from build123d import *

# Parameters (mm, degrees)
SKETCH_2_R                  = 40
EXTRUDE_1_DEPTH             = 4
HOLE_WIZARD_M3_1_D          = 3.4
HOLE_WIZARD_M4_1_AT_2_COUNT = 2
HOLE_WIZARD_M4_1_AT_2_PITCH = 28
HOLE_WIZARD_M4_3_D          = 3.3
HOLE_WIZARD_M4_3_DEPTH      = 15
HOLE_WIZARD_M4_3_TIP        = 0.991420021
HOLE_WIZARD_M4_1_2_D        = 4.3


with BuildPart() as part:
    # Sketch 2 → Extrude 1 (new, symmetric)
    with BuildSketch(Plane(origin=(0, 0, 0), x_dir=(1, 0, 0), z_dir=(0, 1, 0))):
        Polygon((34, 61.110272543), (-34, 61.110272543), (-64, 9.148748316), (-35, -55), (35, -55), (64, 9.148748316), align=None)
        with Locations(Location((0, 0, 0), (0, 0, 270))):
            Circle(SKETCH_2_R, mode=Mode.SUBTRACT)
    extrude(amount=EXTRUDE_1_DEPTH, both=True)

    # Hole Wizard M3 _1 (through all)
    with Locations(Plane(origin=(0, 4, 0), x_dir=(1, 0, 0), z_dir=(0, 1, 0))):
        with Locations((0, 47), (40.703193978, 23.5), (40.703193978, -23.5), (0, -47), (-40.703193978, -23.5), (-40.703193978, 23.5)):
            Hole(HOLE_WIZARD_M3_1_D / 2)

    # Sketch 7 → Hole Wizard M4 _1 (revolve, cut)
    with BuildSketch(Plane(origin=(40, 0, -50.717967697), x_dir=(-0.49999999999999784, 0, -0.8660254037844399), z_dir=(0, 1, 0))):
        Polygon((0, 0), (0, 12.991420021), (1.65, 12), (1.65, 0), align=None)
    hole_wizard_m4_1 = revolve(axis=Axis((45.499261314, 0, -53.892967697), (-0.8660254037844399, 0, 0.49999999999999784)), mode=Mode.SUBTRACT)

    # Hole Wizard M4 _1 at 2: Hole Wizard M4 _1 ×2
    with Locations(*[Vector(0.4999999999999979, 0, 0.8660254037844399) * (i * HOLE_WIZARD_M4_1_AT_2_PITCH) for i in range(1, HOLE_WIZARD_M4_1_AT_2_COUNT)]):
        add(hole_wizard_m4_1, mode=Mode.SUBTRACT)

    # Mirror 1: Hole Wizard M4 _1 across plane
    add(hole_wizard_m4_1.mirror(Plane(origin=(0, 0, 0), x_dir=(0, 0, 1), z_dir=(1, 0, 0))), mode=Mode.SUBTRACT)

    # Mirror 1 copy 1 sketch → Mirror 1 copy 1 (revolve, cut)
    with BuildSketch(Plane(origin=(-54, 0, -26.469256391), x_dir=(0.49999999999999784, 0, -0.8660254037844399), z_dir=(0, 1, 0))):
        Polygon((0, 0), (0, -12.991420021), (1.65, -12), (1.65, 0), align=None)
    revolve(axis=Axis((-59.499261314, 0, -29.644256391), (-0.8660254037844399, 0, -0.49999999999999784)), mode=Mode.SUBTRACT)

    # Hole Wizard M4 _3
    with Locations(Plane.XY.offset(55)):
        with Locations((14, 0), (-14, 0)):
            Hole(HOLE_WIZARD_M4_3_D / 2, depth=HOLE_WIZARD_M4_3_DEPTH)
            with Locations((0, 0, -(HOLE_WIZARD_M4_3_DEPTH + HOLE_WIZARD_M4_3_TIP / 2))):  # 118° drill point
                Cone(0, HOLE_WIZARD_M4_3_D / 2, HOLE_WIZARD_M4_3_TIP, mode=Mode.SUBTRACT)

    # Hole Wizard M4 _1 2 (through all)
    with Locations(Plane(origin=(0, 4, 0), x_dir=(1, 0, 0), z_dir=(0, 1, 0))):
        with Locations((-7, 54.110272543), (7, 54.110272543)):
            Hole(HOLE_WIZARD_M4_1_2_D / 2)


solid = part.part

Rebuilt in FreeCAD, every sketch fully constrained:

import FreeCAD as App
import Part
import Sketcher
Q = App.Units.Quantity

doc = App.newDocument("Part")
body = doc.addObject("PartDesign::Body", "Body")

sketch1 = doc.addObject("Sketcher::SketchObject", "Sketch")
body.addObject(sketch1)
sketch1.AttachmentSupport = (doc.XZ_Plane, [""])
sketch1.MapMode = "FlatFace"
sketch1.addGeometry([
    Part.LineSegment(App.Vector(34, -61, 0), App.Vector(-34, -61, 0)),
    Part.LineSegment(App.Vector(-34, -61, 0), App.Vector(-64, -9, 0)),
    Part.LineSegment(App.Vector(-64, -9, 0), App.Vector(-35, 55, 0)),
    Part.LineSegment(App.Vector(-35, 55, 0), App.Vector(35, 55, 0)),
    Part.LineSegment(App.Vector(35, 55, 0), App.Vector(64, -9, 0)),
    Part.LineSegment(App.Vector(64, -9, 0), App.Vector(34, -61, 0)),
    Part.Circle(App.Vector(0, 0, 0), App.Vector(0, 0, 1), 40),
], False)
sketch1.addConstraint([
    Sketcher.Constraint("Coincident", 0, 2, 1, 1),
    Sketcher.Constraint("Coincident", 1, 2, 2, 1),
    Sketcher.Constraint("Coincident", 2, 2, 3, 1),
    Sketcher.Constraint("Coincident", 3, 2, 4, 1),
    Sketcher.Constraint("Coincident", 4, 2, 5, 1),
    Sketcher.Constraint("Coincident", 5, 2, 0, 1),
    Sketcher.Constraint("Horizontal", 0),
    Sketcher.Constraint("Horizontal", 3),
    Sketcher.Constraint("Coincident", 6, 3, -1, 1),
    Sketcher.Constraint("Symmetric", 1, 2, 4, 2, -2),
    Sketcher.Constraint("Equal", 2, 4),
    Sketcher.Constraint("Equal", 1, 5),
    Sketcher.Constraint("Diameter", 6, Q("80 mm")),
    Sketcher.Constraint("DistanceX", 0, 2, 0, 1, Q("68 mm")),
    Sketcher.Constraint("DistanceX", 3, 1, 3, 2, Q("70 mm")),
    Sketcher.Constraint("Angle", 1, Q("120 deg")),
    Sketcher.Constraint("Distance", 1, Q("60 mm")),
    Sketcher.Constraint("DistanceY", -1, 1, 2, 2, Q("55 mm")),
    Sketcher.Constraint("DistanceY", 1, 2, -1, 1, Q("9.148748 mm")),
])
pad1 = doc.addObject("PartDesign::Pad", "Pad")
body.addObject(pad1)
pad1.Profile = sketch1
pad1.Length = 8
pad1.Midplane = True

sketch2 = doc.addObject("Sketcher::SketchObject", "Sketch001")
body.addObject(sketch2)
sketch2.AttachmentSupport = (doc.XZ_Plane, [""])
sketch2.MapMode = "FlatFace"
sketch2.AttachmentOffset = App.Placement(App.Vector(0, 0, -4), App.Rotation())
sketch2.addGeometry([
    Part.Circle(App.Vector(0, -47, 0), App.Vector(0, 0, 1), 1.7),
    Part.Circle(App.Vector(40.7, -23.5, 0), App.Vector(0, 0, 1), 1.7),
    Part.Circle(App.Vector(40.7, 23.5, 0), App.Vector(0, 0, 1), 1.7),
    Part.Circle(App.Vector(0, 47, 0), App.Vector(0, 0, 1), 1.7),
    Part.Circle(App.Vector(-40.7, 23.5, 0), App.Vector(0, 0, 1), 1.7),
    Part.Circle(App.Vector(-40.7, -23.5, 0), App.Vector(0, 0, 1), 1.7),
], False)
sketch2.addConstraint([
    Sketcher.Constraint("Equal", 0, 1),
    Sketcher.Constraint("Equal", 1, 2),
    Sketcher.Constraint("Equal", 2, 3),
    Sketcher.Constraint("Equal", 3, 4),
    Sketcher.Constraint("Equal", 4, 5),
    Sketcher.Constraint("Symmetric", 0, 3, 3, 3, -1, 1),
    Sketcher.Constraint("Symmetric", 1, 3, 4, 3, -1, 1),
    Sketcher.Constraint("Symmetric", 2, 3, 5, 3, -1, 1),
    Sketcher.Constraint("Symmetric", 2, 3, 4, 3, -2),
    Sketcher.Constraint("PointOnObject", 0, 3, -2),
    Sketcher.Constraint("Diameter", 0, Q("3.4 mm")),
    Sketcher.Constraint("DistanceY", 0, 3, -1, 1, Q("47 mm")),
    Sketcher.Constraint("DistanceY", 1, 3, 2, 3, Q("47 mm")),
    Sketcher.Constraint("DistanceX", -1, 1, 1, 3, Q("40.703194 mm")),
])
doc.recompute()
hole = doc.addObject("PartDesign::Hole", "Hole")
body.addObject(hole)
hole.Profile = sketch2
hole.ThreadType = "None"
hole.Diameter = 3.4
hole.DepthType = "ThroughAll"
hole.Reversed = True

sketch3 = doc.addObject("Sketcher::SketchObject", "Sketch002")
body.addObject(sketch3)
sketch3.AttachmentSupport = (doc.XZ_Plane, [""])
sketch3.MapMode = "FlatFace"
sketch3.addGeometry([
    Part.LineSegment(App.Vector(28.7, -44.2, 0), App.Vector(40, -50.7, 0)),
    Part.LineSegment(App.Vector(40, -50.7, 0), App.Vector(39.2, -52.1, 0)),
    Part.LineSegment(App.Vector(39.2, -52.1, 0), App.Vector(28.8, -46.1, 0)),
    Part.LineSegment(App.Vector(28.8, -46.1, 0), App.Vector(28.7, -44.2, 0)),
], False)
sketch3.addGeometry(Part.LineSegment(App.Vector(40, -50.7, 0), App.Vector(28.7, -44.2, 0)), True)
sketch3.addConstraint([
    Sketcher.Constraint("Coincident", 0, 2, 1, 1),
    Sketcher.Constraint("Coincident", 1, 2, 2, 1),
    Sketcher.Constraint("Coincident", 2, 2, 3, 1),
    Sketcher.Constraint("Coincident", 3, 2, 0, 1),
    Sketcher.Constraint("Coincident", 4, 1, 0, 2),
    Sketcher.Constraint("Coincident", 4, 2, 3, 2),
    Sketcher.Constraint("Perpendicular", 0, 1),
    Sketcher.Constraint("Perpendicular", 1, 2),
    Sketcher.Constraint("Angle", 0, Q("-30 deg")),
    Sketcher.Constraint("Angle", 3, Q("91 deg")),
    Sketcher.Constraint("Distance", 2, Q("12 mm")),
    Sketcher.Constraint("DistanceX", -1, 1, 0, 2, Q("40 mm")),
    Sketcher.Constraint("Distance", 1, Q("1.65 mm")),
    Sketcher.Constraint("DistanceY", 1, 2, -1, 1, Q("52.14691 mm")),
])
groove = doc.addObject("PartDesign::Groove", "Groove")
body.addObject(groove)
groove.Profile = sketch3
groove.ReferenceAxis = (sketch3, ["Axis0"])
groove.Angle = 360
doc.recompute()

datumline = doc.addObject("PartDesign::Line", "DatumLine")
body.addObject(datumline)
datumline.Placement = App.Placement(App.Vector(0, 0, 0), App.Rotation(App.Vector(0, 0, 1), App.Vector(0.5, 0, 0.866025404)))
linearpattern = doc.addObject("PartDesign::LinearPattern", "LinearPattern")
body.addObject(linearpattern)
linearpattern.Originals = [groove]
linearpattern.Direction = (datumline, [""])
linearpattern.Mode = "offset"
linearpattern.Offset = 28
linearpattern.Occurrences = 2
body.Tip = linearpattern
doc.recompute()

mirrored = doc.addObject("PartDesign::Mirrored", "Mirrored")
body.addObject(mirrored)
mirrored.Originals = [groove]
mirrored.MirrorPlane = (doc.YZ_Plane, [""])
body.Tip = mirrored

sketch4 = doc.addObject("Sketcher::SketchObject", "Sketch003")
body.addObject(sketch4)
sketch4.AttachmentSupport = (doc.XZ_Plane, [""])
sketch4.MapMode = "FlatFace"
sketch4.addGeometry([
    Part.LineSegment(App.Vector(-54, -26.5, 0), App.Vector(-42.7, -20, 0)),
    Part.LineSegment(App.Vector(-42.7, -20, 0), App.Vector(-42.8, -21.9, 0)),
    Part.LineSegment(App.Vector(-42.8, -21.9, 0), App.Vector(-53.2, -27.9, 0)),
    Part.LineSegment(App.Vector(-53.2, -27.9, 0), App.Vector(-54, -26.5, 0)),
], False)
sketch4.addGeometry(Part.LineSegment(App.Vector(-42.7, -20, 0), App.Vector(-54, -26.5, 0)), True)
sketch4.addConstraint([
    Sketcher.Constraint("Coincident", 0, 2, 1, 1),
    Sketcher.Constraint("Coincident", 1, 2, 2, 1),
    Sketcher.Constraint("Coincident", 2, 2, 3, 1),
    Sketcher.Constraint("Coincident", 3, 2, 0, 1),
    Sketcher.Constraint("Coincident", 4, 1, 0, 2),
    Sketcher.Constraint("Coincident", 4, 2, 3, 2),
    Sketcher.Constraint("Parallel", 0, 2),
    Sketcher.Constraint("Perpendicular", 2, 3),
    Sketcher.Constraint("Angle", 0, Q("30 deg")),
    Sketcher.Constraint("Angle", 1, Q("-91 deg")),
    Sketcher.Constraint("Distance", 2, Q("12 mm")),
    Sketcher.Constraint("DistanceX", 3, 2, -1, 1, Q("54 mm")),
    Sketcher.Constraint("Distance", 3, Q("1.65 mm")),
    Sketcher.Constraint("DistanceY", 1, 2, -1, 1, Q("21.898198 mm")),
])
groove2 = doc.addObject("PartDesign::Groove", "Groove001")
body.addObject(groove2)
groove2.Profile = sketch4
groove2.ReferenceAxis = (sketch4, ["Axis0"])
groove2.Angle = 360

sketch5 = doc.addObject("Sketcher::SketchObject", "Sketch004")
body.addObject(sketch5)
sketch5.AttachmentSupport = (doc.XY_Plane, [""])
sketch5.MapMode = "FlatFace"
sketch5.AttachmentOffset = App.Placement(App.Vector(0, 0, 55), App.Rotation())
sketch5.addGeometry([
    Part.Circle(App.Vector(14, 0, 0), App.Vector(0, 0, 1), 1.6),
    Part.Circle(App.Vector(-14, 0, 0), App.Vector(0, 0, 1), 1.6),
], False)
sketch5.addConstraint([
    Sketcher.Constraint("Equal", 0, 1),
    Sketcher.Constraint("Symmetric", 0, 3, 1, 3, -1, 1),
    Sketcher.Constraint("PointOnObject", 0, 3, -1),
    Sketcher.Constraint("Diameter", 0, Q("3.3 mm")),
    Sketcher.Constraint("DistanceX", -1, 1, 0, 3, Q("14 mm")),
])
doc.recompute()
hole2 = doc.addObject("PartDesign::Hole", "Hole001")
body.addObject(hole2)
hole2.Profile = sketch5
hole2.ThreadType = "None"
hole2.Diameter = 3.3
hole2.DepthType = "Dimension"
hole2.Depth = 15
hole2.DrillPoint = "Angled"
hole2.DrillPointAngle = 118

sketch6 = doc.addObject("Sketcher::SketchObject", "Sketch005")
body.addObject(sketch6)
sketch6.AttachmentSupport = (doc.XZ_Plane, [""])
sketch6.MapMode = "FlatFace"
sketch6.AttachmentOffset = App.Placement(App.Vector(0, 0, -4), App.Rotation())
sketch6.addGeometry([
    Part.Circle(App.Vector(-7, -54.1, 0), App.Vector(0, 0, 1), 2.1),
    Part.Circle(App.Vector(7, -54.1, 0), App.Vector(0, 0, 1), 2.1),
], False)
sketch6.addConstraint([
    Sketcher.Constraint("Equal", 0, 1),
    Sketcher.Constraint("Symmetric", 0, 3, 1, 3, -2),
    Sketcher.Constraint("Diameter", 0, Q("4.3 mm")),
    Sketcher.Constraint("DistanceX", 0, 3, -1, 1, Q("7 mm")),
    Sketcher.Constraint("DistanceY", 0, 3, -1, 1, Q("54.110273 mm")),
])
doc.recompute()
hole3 = doc.addObject("PartDesign::Hole", "Hole002")
body.addObject(hole3)
hole3.Profile = sketch6
hole3.ThreadType = "None"
hole3.Diameter = 4.3
hole3.DepthType = "ThroughAll"
hole3.Reversed = True

doc.recompute()
